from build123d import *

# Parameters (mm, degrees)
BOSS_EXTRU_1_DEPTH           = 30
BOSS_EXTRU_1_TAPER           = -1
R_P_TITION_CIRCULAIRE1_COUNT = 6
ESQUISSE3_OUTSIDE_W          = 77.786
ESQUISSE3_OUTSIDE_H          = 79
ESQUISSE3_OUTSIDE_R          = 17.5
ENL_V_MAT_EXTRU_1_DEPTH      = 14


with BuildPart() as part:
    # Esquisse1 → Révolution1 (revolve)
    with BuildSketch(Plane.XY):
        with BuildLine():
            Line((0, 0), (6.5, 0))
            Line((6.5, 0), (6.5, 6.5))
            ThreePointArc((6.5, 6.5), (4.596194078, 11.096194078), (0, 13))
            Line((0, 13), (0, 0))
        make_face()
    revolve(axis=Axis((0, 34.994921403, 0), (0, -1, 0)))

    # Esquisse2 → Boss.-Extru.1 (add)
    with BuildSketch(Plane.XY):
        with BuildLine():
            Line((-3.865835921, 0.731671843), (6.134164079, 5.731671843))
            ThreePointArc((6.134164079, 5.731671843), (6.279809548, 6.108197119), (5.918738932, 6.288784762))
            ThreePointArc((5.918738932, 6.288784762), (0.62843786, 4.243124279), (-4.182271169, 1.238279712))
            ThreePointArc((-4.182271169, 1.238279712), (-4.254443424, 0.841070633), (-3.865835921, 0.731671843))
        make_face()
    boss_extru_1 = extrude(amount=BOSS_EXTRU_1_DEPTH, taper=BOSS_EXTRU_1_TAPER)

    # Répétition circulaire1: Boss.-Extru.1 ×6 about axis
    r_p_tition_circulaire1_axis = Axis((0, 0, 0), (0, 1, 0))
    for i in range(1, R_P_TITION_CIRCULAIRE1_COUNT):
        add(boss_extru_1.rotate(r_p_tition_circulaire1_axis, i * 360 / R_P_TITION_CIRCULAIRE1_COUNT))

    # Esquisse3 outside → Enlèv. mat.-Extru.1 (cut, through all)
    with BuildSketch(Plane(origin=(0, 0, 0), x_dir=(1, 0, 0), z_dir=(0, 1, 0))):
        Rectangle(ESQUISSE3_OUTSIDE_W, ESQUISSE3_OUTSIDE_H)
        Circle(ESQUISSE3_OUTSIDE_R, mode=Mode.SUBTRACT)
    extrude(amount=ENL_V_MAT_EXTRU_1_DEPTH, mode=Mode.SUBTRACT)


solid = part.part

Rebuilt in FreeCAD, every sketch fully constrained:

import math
import FreeCAD as App
import Part
import Sketcher
from FreeCAD import Vector
Q = App.Units.Quantity

doc = App.newDocument("Part")
body = doc.addObject("PartDesign::Body", "Body")

sketch1 = body.newObject("Sketcher::SketchObject", "Sketch")
sketch1.AttachmentSupport = (doc.getObject("XY_Plane"), [""])
sketch1.MapMode = "FlatFace"
sketch1.addGeometry(Part.LineSegment(Vector(0, 0, 0), Vector(6, 0, 0)), False)
sketch1.addGeometry(Part.LineSegment(Vector(6, 0, 0), Vector(6, 6, 0)), False)
sketch1.addGeometry(Part.ArcOfCircle(Part.Circle(Vector(0, 7, 0), Vector(0, 0, 1), 6), math.radians(0), math.radians(90)), False)
sketch1.addGeometry(Part.LineSegment(Vector(0, 13, 0), Vector(0, 0, 0)), False)
sketch1.addConstraint(Sketcher.Constraint("Coincident", 0, 2, 1, 1))
sketch1.addConstraint(Sketcher.Constraint("Tangent", 1, 2, 2, 1))
sketch1.addConstraint(Sketcher.Constraint("Coincident", 2, 2, 3, 1))
sketch1.addConstraint(Sketcher.Constraint("Coincident", 3, 2, 0, 1))
sketch1.addConstraint(Sketcher.Constraint("Horizontal", 0))
sketch1.addConstraint(Sketcher.Constraint("Vertical", 1))
sketch1.addConstraint(Sketcher.Constraint("Vertical", 3))
sketch1.addConstraint(Sketcher.Constraint("Coincident", 3, 2, -1, 1))
sketch1.addConstraint(Sketcher.Constraint("PointOnObject", 2, 3, -2))
sketch1.addConstraint(Sketcher.Constraint("Equal", 0, 1))
sketch1.addConstraint(Sketcher.Constraint("Radius", 2, Q("6.5 mm")))
revolution = body.newObject("PartDesign::Revolution", "Revolution")
revolution.Profile = sketch1
revolution.ReferenceAxis = (sketch1, ["V_Axis"])
revolution.Angle = 360

sketch2 = body.newObject("Sketcher::SketchObject", "Sketch001")
sketch2.AttachmentSupport = (doc.getObject("XY_Plane"), [""])
sketch2.MapMode = "FlatFace"
sketch2.addGeometry(Part.LineSegment(Vector(-3.87, 0.73, 0), Vector(6.13, 5.73, 0)), False)
sketch2.addGeometry(Part.ArcOfCircle(Part.Circle(Vector(6, 6, 0), Vector(0, 0, 1), 0.3), math.radians(-63), math.radians(106)), False)
sketch2.addGeometry(Part.ArcOfCircle(Part.Circle(Vector(14.04, -22.59, 0), Vector(0, 0, 1), 30), math.radians(106), math.radians(127)), False)
sketch2.addGeometry(Part.ArcOfCircle(Part.Circle(Vector(-4, 1, 0), Vector(0, 0, 1), 0.3), math.radians(127), math.radians(297)), False)
sketch2.addConstraint(Sketcher.Constraint("Tangent", 0, 2, 1, 1))
sketch2.addConstraint(Sketcher.Constraint("Tangent", 1, 2, 2, 1))
sketch2.addConstraint(Sketcher.Constraint("Tangent", 2, 2, 3, 1))
sketch2.addConstraint(Sketcher.Constraint("Tangent", 3, 2, 0, 1))
sketch2.addConstraint(Sketcher.Constraint("Equal", 1, 3))
sketch2.addConstraint(Sketcher.Constraint("Radius", 2, Q("30 mm")))
sketch2.addConstraint(Sketcher.Constraint("Radius", 1, Q("0.3 mm")))
sketch2.addConstraint(Sketcher.Constraint("DistanceX", -1, 1, 1, 3, Q("6 mm")))
sketch2.addConstraint(Sketcher.Constraint("DistanceY", -1, 1, 1, 3, Q("6 mm")))
sketch2.addConstraint(Sketcher.Constraint("DistanceX", 3, 3, -1, 1, Q("4 mm")))
sketch2.addConstraint(Sketcher.Constraint("DistanceY", -1, 1, 3, 3, Q("1 mm")))
pad1 = body.newObject("PartDesign::Pad", "Pad")
pad1.Profile = sketch2
pad1.Length = 30
pad1.TaperAngle = 1
doc.recompute()

polarpattern = body.newObject("PartDesign::PolarPattern", "PolarPattern")
polarpattern.Originals = [pad1]
polarpattern.Axis = (doc.getObject("Y_Axis"), [""])
polarpattern.Angle = 360
polarpattern.Occurrences = 6
body.Tip = polarpattern

sketch3 = body.newObject("Sketcher::SketchObject", "Sketch002")
sketch3.AttachmentSupport = (doc.getObject("XZ_Plane"), [""])
sketch3.MapMode = "FlatFace"
sketch3.addGeometry(Part.LineSegment(Vector(-39, -40, 0), Vector(-39, 40, 0)), False)
sketch3.addGeometry(Part.LineSegment(Vector(-39, 40, 0), Vector(39, 40, 0)), False)
sketch3.addGeometry(Part.LineSegment(Vector(39, 40, 0), Vector(39, -40, 0)), False)
sketch3.addGeometry(Part.LineSegment(Vector(39, -40, 0), Vector(-39, -40, 0)), False)
sketch3.addGeometry(Part.Circle(Vector(0, 0, 0), Vector(0, 0, 1), 18), False)
sketch3.addConstraint(Sketcher.Constraint("Coincident", 0, 2, 1, 1))
sketch3.addConstraint(Sketcher.Constraint("Coincident", 1, 2, 2, 1))
sketch3.addConstraint(Sketcher.Constraint("Coincident", 2, 2, 3, 1))
sketch3.addConstraint(Sketcher.Constraint("Coincident", 3, 2, 0, 1))
sketch3.addConstraint(Sketcher.Constraint("Vertical", 0))
sketch3.addConstraint(Sketcher.Constraint("Horizontal", 1))
sketch3.addConstraint(Sketcher.Constraint("Vertical", 2))
sketch3.addConstraint(Sketcher.Constraint("Horizontal", 3))
sketch3.addConstraint(Sketcher.Constraint("Coincident", 4, 3, -1, 1))
sketch3.addConstraint(Sketcher.Constraint("Symmetric", 0, 2, 2, 2, -1, 1))
sketch3.addConstraint(Sketcher.Constraint("Diameter", 4, Q("35 mm")))
sketch3.addConstraint(Sketcher.Constraint("DistanceY", 0, 1, 0, 2, Q("79 mm")))
sketch3.addConstraint(Sketcher.Constraint("DistanceX", 1, 1, 1, 2, Q("77.786 mm")))
pocket1 = body.newObject("PartDesign::Pocket", "Pocket")
pocket1.Profile = sketch3
pocket1.Type = "ThroughAll"

doc.recompute()
